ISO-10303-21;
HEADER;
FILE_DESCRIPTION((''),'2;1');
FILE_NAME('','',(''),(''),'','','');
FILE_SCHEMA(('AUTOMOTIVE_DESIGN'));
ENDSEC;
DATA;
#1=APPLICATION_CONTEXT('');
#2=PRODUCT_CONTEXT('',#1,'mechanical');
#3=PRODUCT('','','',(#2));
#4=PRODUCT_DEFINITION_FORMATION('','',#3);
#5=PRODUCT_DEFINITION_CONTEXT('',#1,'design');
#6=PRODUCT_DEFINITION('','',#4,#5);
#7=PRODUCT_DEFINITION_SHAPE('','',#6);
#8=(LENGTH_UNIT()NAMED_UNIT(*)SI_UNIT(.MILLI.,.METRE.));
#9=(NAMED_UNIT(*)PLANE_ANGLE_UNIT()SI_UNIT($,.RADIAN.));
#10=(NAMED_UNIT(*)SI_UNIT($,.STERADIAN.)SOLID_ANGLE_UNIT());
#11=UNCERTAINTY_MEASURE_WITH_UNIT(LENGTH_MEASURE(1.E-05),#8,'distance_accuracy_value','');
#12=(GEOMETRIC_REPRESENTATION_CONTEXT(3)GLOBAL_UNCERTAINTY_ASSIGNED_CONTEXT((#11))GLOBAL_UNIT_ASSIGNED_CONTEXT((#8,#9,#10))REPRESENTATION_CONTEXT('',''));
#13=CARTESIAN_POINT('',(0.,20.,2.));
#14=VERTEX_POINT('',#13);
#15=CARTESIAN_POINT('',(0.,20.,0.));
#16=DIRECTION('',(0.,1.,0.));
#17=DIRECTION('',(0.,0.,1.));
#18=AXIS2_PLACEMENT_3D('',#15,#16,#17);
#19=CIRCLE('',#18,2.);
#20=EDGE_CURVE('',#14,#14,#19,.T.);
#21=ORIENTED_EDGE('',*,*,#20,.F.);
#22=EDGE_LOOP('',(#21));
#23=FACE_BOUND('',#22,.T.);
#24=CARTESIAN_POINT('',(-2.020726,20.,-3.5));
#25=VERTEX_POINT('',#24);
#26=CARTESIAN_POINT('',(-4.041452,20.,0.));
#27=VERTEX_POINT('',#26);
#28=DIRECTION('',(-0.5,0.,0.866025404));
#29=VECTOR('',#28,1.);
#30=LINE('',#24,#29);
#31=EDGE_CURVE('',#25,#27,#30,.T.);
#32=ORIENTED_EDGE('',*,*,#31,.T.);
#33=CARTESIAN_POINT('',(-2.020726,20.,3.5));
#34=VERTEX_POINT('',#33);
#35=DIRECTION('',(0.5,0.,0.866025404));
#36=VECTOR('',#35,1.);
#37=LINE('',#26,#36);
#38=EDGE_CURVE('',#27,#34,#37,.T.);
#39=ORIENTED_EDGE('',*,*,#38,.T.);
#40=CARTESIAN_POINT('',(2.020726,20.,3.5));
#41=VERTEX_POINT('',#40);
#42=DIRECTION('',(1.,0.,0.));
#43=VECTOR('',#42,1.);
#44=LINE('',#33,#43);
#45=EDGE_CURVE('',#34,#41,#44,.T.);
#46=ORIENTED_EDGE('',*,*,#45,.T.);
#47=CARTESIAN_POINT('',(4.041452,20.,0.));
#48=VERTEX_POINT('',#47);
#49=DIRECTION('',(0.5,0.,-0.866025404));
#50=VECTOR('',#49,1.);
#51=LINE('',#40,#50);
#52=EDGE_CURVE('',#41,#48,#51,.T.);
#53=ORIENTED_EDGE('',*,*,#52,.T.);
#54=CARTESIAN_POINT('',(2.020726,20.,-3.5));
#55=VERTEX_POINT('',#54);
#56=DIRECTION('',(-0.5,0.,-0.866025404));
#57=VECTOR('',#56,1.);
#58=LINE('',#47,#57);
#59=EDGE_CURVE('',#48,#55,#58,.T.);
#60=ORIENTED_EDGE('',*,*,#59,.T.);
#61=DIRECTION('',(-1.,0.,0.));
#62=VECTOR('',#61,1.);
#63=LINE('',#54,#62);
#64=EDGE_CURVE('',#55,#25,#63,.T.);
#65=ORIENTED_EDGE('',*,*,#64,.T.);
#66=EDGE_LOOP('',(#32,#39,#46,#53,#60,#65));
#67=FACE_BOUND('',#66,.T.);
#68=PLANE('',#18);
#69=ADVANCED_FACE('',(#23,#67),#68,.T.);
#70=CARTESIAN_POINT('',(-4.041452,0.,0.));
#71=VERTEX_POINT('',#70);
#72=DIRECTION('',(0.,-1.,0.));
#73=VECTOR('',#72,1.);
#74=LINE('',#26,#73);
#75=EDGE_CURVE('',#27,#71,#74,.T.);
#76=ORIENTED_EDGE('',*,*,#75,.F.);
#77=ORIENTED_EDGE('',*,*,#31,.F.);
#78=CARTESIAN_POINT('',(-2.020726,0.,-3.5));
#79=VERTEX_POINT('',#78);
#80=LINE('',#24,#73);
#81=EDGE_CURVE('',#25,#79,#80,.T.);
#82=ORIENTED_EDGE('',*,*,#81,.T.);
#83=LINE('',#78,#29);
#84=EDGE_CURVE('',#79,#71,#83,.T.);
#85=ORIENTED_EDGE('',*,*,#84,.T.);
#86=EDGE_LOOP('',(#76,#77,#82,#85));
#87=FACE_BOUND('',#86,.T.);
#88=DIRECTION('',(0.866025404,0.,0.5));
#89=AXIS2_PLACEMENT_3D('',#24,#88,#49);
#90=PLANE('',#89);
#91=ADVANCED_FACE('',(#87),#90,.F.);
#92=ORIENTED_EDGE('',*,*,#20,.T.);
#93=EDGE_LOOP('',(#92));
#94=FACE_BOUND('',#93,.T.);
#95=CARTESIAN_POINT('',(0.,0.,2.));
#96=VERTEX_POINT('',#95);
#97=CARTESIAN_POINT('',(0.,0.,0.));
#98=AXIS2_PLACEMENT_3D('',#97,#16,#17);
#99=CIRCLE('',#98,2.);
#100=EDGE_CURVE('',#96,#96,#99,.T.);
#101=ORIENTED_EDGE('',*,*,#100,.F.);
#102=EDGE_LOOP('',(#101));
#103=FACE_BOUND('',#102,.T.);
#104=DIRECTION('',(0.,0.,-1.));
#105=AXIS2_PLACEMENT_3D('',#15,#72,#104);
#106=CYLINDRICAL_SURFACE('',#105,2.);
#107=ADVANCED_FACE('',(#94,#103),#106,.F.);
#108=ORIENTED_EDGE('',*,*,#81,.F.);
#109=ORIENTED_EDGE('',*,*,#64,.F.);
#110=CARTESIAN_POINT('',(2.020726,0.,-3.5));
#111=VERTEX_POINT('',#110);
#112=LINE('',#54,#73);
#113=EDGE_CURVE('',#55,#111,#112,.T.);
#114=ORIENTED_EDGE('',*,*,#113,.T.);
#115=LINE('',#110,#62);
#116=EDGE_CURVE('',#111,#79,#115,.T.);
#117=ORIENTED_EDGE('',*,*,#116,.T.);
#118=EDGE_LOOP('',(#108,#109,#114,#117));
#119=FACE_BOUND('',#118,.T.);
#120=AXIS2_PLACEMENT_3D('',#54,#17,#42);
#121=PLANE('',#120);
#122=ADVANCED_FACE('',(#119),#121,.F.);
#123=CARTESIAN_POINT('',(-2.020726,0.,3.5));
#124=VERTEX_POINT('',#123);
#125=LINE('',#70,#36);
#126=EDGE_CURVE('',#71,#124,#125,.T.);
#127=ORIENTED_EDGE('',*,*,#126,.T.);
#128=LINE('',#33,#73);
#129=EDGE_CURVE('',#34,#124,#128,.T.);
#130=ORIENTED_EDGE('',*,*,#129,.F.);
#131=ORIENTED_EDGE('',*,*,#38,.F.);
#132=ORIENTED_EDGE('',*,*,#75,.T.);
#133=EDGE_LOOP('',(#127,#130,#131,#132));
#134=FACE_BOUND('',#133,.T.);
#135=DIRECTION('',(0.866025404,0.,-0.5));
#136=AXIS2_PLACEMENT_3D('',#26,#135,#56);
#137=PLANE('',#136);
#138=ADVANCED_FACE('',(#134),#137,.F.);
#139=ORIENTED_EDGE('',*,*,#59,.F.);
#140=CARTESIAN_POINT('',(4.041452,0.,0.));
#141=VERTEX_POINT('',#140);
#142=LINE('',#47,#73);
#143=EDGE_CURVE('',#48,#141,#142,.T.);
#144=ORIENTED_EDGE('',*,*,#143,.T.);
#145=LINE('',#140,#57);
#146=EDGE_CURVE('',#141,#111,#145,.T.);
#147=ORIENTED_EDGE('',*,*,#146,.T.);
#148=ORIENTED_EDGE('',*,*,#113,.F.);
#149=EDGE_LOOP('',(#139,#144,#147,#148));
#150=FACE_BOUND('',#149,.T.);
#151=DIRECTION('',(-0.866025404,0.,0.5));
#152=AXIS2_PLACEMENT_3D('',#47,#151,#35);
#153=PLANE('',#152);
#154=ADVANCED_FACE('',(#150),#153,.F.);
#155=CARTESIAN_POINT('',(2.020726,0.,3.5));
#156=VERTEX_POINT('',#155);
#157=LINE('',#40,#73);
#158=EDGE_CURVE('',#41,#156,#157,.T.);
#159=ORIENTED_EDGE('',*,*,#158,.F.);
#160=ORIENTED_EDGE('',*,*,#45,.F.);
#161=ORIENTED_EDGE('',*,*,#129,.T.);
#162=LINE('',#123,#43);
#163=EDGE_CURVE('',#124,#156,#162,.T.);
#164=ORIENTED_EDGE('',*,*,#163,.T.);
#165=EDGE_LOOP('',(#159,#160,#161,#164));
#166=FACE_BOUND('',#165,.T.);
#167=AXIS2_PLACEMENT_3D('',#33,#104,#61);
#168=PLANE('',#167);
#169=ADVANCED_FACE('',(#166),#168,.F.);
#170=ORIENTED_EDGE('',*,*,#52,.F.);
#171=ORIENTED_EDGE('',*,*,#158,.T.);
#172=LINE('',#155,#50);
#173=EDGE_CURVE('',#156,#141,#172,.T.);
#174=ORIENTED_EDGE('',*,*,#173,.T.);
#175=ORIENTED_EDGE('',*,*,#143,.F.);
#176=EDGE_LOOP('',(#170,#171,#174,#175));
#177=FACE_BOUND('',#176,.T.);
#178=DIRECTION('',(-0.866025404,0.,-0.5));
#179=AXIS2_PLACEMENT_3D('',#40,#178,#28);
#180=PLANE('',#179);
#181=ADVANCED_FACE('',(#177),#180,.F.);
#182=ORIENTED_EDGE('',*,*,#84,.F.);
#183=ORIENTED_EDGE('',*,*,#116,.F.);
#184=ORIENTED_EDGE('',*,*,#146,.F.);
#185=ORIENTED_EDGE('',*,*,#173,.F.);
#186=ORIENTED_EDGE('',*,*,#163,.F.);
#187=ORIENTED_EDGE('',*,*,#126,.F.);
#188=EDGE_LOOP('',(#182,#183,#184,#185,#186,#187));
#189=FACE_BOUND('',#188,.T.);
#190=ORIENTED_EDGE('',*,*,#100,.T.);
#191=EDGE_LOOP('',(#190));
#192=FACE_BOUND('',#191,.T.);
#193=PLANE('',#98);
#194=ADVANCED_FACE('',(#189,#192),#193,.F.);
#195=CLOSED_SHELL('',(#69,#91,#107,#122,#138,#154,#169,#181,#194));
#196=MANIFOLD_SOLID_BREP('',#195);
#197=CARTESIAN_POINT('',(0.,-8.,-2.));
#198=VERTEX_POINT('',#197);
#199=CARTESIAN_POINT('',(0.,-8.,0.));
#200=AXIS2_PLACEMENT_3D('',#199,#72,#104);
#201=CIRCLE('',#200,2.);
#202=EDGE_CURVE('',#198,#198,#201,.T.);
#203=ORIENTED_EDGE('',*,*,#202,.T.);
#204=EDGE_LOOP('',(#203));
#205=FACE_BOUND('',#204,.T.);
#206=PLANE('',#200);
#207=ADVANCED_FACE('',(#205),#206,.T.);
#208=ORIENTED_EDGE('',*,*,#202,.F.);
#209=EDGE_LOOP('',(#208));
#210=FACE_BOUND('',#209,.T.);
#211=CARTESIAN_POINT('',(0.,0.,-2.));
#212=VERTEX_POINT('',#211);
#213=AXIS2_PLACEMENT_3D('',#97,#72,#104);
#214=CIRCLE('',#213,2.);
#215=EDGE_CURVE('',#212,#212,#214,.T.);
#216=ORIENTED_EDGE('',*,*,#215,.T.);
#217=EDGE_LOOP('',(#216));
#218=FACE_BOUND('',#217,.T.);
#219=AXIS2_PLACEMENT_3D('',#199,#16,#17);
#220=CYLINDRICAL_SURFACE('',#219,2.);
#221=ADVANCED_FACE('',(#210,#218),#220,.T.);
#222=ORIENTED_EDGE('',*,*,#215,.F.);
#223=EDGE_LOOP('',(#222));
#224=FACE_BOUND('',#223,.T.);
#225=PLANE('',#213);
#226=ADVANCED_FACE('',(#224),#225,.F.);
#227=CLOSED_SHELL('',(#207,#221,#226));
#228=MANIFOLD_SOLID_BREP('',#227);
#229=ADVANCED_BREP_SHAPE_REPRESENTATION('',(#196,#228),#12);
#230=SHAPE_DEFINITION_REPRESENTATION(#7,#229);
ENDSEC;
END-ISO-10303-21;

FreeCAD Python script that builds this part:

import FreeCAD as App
import Part
import Sketcher

V = App.Vector
Q = App.Units.Quantity

doc = App.newDocument("Part")
body = doc.addObject("PartDesign::Body", "Body")

sketch1 = body.newObject("Sketcher::SketchObject", "Sketch")
sketch1.AttachmentSupport = (doc.getObject("XZ_Plane"), [""])
sketch1.MapMode = "FlatFace"
sketch1.addGeometry([
    Part.LineSegment(V(4, 0, 0), V(2, -3.5, 0)),
    Part.LineSegment(V(2, -3.5, 0), V(-2, -3.5, 0)),
    Part.LineSegment(V(-2, -3.5, 0), V(-4, 0, 0)),
    Part.LineSegment(V(-4, 0, 0), V(-2, 3.5, 0)),
    Part.LineSegment(V(-2, 3.5, 0), V(2, 3.5, 0)),
    Part.LineSegment(V(2, 3.5, 0), V(4, 0, 0)),
    Part.Circle(V(0, 0, 0), V(0, 0, 1), 2),
], False)
sketch1.addConstraint([
    Sketcher.Constraint("Coincident", 0, 2, 1, 1),
    Sketcher.Constraint("Coincident", 1, 2, 2, 1),
    Sketcher.Constraint("Coincident", 2, 2, 3, 1),
    Sketcher.Constraint("Coincident", 3, 2, 4, 1),
    Sketcher.Constraint("Coincident", 4, 2, 5, 1),
    Sketcher.Constraint("Coincident", 5, 2, 0, 1),
    Sketcher.Constraint("Horizontal", 1),
    Sketcher.Constraint("Horizontal", 4),
    Sketcher.Constraint("Coincident", 6, 3, -1, 1),
    Sketcher.Constraint("Symmetric", 0, 2, 3, 2, -1, 1),
    Sketcher.Constraint("Symmetric", 2, 2, 5, 2, -1, 1),
    Sketcher.Constraint("PointOnObject", 2, 2, -1),
    Sketcher.Constraint("Parallel", 2, 5),
    Sketcher.Constraint("Vertical", 1, 2, 3, 2),
    Sketcher.Constraint("Diameter", 6, 4.0),
    Sketcher.Constraint("Angle", 0, Q("-120 deg")),
    Sketcher.Constraint("DistanceY", 1, 2, 3, 2, 7.0),
    Sketcher.Constraint("DistanceX", 1, 2, 1, 1, 4.041452),
])
pad1 = body.newObject("PartDesign::Pad", "Pad")
pad1.Profile = sketch1
pad1.Length = 20
pad1.Reversed = True
body2 = doc.addObject("PartDesign::Body", "Body001")

sketch2 = body2.newObject("Sketcher::SketchObject", "Sketch001")
sketch2.AttachmentSupport = (doc.getObject("XZ_Plane001"), [""])
sketch2.MapMode = "FlatFace"
sketch2.addGeometry(Part.Circle(V(0, 0, 0), V(0, 0, 1), 2), False)
sketch2.addConstraint([
    Sketcher.Constraint("Coincident", 0, 3, -1, 1),
    Sketcher.Constraint("Diameter", 0, 4.0),
])
pad2 = body2.newObject("PartDesign::Pad", "Pad001")
pad2.Profile = sketch2
pad2.Length = 8

doc.recompute()
